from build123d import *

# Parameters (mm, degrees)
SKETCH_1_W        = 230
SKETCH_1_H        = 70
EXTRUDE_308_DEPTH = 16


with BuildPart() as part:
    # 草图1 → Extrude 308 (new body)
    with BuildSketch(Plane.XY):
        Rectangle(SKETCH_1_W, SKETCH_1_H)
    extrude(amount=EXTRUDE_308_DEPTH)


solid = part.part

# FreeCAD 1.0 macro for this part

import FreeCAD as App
import Part
import Sketcher
Q = App.Units.Quantity

doc = App.newDocument("Part")
body = doc.addObject("PartDesign::Body", "Body")

sketch1 = body.newObject("Sketcher::SketchObject", "Sketch")
sketch1.AttachmentSupport = (doc.getObject("XY_Plane"), [""])
sketch1.MapMode = "FlatFace"
sketch1.addGeometry([
    Part.LineSegment(App.Vector(-115, 35, 0), App.Vector(-115, -35, 0)),
    Part.LineSegment(App.Vector(-115, -35, 0), App.Vector(115, -35, 0)),
    Part.LineSegment(App.Vector(115, -35, 0), App.Vector(115, 35, 0)),
    Part.LineSegment(App.Vector(115, 35, 0), App.Vector(-115, 35, 0)),
], False)
sketch1.addConstraint([
    Sketcher.Constraint("Coincident", 0, 2, 1, 1),
    Sketcher.Constraint("Coincident", 1, 2, 2, 1),
    Sketcher.Constraint("Coincident", 2, 2, 3, 1),
    Sketcher.Constraint("Coincident", 3, 2, 0, 1),
    Sketcher.Constraint("Vertical", 0),
    Sketcher.Constraint("Horizontal", 1),
    Sketcher.Constraint("Vertical", 2),
    Sketcher.Constraint("Horizontal", 3),
    Sketcher.Constraint("Symmetric", 0, 2, 2, 2, -1, 1),
    Sketcher.Constraint("DistanceX", 1, 1, 1, 2, Q("230 mm")),
    Sketcher.Constraint("DistanceY", 0, 2, 0, 1, Q("70 mm")),
])
pad1 = body.newObject("PartDesign::Pad", "Pad")
pad1.Profile = sketch1
pad1.Length = 16

doc.recompute()
